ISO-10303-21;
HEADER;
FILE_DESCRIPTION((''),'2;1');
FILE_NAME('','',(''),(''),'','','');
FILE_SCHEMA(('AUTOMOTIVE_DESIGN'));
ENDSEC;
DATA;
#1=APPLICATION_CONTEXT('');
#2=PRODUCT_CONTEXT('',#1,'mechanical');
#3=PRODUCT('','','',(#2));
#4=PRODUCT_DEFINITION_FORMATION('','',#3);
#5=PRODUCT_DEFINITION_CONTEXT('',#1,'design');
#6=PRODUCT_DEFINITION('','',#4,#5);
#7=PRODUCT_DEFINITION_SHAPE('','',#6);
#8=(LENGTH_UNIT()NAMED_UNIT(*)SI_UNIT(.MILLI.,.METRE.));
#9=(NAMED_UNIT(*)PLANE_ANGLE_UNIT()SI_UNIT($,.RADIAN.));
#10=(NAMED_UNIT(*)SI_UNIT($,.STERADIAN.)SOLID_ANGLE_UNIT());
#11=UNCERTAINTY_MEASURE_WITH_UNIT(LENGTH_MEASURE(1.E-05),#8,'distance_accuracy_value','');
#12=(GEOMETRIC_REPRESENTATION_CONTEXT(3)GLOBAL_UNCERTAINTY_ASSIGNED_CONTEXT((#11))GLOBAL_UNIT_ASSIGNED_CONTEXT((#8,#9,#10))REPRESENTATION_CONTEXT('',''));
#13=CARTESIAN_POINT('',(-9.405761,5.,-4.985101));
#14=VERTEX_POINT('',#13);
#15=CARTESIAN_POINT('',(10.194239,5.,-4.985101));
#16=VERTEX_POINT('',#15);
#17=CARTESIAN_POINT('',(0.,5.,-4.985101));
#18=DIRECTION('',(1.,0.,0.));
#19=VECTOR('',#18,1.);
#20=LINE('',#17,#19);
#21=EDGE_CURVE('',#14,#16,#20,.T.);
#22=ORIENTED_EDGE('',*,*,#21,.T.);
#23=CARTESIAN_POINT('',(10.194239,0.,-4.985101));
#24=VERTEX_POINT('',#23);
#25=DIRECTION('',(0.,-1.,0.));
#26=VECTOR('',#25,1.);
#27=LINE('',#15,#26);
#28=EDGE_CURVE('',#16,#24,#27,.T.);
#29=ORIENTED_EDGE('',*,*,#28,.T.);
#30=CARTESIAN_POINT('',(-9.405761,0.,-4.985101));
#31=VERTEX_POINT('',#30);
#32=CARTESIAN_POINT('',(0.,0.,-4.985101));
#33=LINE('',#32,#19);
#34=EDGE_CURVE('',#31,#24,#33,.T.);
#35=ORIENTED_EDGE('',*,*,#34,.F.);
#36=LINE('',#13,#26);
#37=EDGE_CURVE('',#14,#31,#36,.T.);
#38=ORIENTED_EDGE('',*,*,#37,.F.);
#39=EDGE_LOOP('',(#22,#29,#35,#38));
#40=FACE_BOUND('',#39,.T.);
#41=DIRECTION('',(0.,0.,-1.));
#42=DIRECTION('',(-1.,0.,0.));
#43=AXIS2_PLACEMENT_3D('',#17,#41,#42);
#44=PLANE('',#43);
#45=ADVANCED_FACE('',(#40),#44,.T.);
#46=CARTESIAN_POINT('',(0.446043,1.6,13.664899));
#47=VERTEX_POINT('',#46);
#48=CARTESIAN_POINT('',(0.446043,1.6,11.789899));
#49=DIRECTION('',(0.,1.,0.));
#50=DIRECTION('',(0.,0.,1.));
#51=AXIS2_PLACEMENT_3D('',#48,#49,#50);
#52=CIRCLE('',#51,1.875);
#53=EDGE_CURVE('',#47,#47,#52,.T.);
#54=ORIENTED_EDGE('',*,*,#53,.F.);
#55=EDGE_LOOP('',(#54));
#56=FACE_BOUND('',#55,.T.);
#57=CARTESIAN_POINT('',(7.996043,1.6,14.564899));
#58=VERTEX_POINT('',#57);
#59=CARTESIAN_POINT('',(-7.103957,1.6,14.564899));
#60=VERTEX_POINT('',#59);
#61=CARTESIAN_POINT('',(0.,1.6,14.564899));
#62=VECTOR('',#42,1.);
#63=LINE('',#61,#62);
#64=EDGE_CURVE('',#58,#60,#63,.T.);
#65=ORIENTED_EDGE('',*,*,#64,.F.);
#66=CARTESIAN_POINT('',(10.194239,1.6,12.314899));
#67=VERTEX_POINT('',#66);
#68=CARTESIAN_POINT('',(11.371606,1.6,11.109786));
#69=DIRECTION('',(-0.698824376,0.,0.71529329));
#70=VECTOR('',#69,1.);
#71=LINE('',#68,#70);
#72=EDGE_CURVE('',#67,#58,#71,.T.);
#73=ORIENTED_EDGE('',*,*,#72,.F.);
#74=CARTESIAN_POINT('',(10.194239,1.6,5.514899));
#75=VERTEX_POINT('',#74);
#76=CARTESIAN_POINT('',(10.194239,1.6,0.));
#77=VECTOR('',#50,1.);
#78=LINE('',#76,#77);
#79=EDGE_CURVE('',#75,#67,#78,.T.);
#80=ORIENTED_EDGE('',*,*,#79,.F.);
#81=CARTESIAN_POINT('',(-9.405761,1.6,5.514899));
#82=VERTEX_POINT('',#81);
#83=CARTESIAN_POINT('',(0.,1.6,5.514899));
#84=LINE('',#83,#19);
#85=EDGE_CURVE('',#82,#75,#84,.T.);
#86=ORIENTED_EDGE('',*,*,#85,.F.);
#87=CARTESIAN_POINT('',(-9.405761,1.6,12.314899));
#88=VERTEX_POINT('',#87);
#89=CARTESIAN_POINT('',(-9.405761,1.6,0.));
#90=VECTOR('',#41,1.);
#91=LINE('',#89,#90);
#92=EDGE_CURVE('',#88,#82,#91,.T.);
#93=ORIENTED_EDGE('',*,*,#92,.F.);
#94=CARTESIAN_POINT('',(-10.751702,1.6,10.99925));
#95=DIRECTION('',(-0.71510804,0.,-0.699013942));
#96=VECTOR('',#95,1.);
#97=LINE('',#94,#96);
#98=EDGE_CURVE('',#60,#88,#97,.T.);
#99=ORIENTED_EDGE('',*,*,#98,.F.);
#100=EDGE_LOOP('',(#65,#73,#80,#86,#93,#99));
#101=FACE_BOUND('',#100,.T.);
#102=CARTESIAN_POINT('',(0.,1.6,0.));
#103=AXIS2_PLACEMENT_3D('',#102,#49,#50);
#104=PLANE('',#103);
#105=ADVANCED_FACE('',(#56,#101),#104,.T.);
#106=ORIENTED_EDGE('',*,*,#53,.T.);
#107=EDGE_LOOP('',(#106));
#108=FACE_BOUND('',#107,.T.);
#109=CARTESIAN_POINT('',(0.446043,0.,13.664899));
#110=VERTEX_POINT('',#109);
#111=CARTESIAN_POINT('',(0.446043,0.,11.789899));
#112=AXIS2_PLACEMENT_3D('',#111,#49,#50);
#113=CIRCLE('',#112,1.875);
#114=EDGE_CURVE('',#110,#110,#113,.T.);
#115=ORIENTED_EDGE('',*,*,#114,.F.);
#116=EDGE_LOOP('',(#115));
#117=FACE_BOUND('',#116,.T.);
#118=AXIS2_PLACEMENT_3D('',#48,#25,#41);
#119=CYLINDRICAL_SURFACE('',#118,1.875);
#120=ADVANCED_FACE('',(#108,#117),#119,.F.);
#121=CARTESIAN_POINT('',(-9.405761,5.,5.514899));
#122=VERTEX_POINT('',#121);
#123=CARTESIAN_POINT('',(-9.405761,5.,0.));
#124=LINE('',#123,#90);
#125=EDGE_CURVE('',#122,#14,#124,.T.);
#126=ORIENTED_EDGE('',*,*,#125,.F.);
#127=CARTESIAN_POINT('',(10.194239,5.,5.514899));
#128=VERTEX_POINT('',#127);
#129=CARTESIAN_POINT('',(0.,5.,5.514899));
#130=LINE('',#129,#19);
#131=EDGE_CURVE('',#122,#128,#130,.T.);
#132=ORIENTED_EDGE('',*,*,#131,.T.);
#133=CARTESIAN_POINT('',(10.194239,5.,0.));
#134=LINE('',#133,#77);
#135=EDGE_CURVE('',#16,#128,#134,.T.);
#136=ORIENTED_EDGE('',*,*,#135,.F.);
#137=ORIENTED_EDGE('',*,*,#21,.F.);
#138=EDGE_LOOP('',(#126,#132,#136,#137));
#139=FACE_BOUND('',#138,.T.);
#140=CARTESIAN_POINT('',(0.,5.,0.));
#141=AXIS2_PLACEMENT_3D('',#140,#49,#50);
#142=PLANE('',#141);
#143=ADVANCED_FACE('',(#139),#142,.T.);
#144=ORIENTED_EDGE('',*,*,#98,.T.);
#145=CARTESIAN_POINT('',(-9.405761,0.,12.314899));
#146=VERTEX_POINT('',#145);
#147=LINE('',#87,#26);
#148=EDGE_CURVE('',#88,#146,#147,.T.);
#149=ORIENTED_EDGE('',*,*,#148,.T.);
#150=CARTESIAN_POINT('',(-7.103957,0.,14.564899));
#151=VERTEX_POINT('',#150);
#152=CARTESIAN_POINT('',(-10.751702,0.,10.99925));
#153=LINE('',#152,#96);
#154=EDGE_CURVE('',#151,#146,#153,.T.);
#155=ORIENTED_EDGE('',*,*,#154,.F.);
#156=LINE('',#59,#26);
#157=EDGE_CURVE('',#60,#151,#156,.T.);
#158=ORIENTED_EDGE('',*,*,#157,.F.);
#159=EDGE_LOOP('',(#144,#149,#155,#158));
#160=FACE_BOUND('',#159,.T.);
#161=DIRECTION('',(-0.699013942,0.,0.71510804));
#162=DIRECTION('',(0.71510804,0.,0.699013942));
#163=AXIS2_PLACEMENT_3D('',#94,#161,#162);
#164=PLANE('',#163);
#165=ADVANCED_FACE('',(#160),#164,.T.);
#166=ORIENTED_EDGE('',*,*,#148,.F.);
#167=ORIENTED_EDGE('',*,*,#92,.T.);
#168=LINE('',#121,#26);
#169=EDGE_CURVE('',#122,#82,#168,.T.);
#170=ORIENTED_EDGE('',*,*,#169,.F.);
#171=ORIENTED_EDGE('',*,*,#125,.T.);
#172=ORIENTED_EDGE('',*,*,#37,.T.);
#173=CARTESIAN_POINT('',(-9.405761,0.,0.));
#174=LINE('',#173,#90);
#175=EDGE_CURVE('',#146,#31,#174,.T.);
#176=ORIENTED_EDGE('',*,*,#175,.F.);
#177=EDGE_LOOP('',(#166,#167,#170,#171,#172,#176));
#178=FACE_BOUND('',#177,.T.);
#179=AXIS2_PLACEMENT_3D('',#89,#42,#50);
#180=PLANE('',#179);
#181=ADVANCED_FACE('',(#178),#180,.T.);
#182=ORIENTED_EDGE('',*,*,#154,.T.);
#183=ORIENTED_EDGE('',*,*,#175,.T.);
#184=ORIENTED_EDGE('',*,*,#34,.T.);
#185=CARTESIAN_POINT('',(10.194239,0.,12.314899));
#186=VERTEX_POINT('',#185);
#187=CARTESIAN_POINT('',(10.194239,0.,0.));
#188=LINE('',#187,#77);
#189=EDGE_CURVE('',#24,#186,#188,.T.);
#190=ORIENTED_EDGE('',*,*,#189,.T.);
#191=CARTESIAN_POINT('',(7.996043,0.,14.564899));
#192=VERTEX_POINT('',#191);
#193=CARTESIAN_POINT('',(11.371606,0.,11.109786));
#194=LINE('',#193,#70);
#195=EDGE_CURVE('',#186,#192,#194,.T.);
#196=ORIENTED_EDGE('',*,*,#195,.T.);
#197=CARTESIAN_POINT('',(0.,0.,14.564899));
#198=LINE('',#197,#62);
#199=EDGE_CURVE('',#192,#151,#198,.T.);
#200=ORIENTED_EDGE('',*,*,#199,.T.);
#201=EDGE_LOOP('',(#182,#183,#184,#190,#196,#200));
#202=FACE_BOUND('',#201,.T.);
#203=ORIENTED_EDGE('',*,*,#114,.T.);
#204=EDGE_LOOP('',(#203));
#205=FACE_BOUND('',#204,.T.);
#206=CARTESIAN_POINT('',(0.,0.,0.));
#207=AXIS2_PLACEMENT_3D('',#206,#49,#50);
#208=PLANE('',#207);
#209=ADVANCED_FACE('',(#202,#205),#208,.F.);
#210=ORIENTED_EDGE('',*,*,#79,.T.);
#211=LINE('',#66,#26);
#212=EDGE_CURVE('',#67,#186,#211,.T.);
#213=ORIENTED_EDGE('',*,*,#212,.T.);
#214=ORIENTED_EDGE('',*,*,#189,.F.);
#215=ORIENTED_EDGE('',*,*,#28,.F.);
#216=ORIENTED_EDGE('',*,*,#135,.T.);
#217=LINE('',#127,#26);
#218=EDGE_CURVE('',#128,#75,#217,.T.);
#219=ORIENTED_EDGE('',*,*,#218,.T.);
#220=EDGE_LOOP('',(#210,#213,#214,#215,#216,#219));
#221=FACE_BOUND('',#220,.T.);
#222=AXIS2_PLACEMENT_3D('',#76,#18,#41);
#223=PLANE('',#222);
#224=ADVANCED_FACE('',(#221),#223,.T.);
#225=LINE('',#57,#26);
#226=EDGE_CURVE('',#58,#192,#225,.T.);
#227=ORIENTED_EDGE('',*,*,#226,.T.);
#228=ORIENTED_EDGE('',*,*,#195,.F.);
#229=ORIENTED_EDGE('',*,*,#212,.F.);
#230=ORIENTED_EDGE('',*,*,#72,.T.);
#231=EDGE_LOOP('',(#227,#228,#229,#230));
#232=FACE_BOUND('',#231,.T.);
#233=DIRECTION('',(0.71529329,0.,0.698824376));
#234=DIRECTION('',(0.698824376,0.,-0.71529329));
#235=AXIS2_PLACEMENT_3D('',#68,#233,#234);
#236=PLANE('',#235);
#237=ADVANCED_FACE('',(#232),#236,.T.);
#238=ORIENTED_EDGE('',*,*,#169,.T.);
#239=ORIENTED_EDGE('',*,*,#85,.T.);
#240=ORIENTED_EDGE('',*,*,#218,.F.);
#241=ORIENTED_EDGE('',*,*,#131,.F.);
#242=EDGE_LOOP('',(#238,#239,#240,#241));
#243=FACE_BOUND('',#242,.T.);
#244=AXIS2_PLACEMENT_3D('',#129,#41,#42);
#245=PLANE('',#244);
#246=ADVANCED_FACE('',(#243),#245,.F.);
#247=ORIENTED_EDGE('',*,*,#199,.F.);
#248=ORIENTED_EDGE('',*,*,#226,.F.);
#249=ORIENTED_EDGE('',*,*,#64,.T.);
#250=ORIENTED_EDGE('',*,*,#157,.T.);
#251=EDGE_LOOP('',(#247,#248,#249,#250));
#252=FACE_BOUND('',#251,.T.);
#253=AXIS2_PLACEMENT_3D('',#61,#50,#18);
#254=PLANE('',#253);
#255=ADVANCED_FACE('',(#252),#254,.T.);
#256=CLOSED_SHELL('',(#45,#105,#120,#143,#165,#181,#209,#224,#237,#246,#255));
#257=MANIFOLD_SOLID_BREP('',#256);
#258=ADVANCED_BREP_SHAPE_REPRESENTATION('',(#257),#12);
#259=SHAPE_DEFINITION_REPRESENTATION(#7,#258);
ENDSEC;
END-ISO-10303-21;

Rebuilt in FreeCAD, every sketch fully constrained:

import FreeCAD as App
import Part
import Sketcher

V = App.Vector


def add_polygon(sketch, points):
    """Adds a closed chain of lines whose ends are joined by coincident constraints."""
    first, n = sketch.GeometryCount, len(points)
    for a, b in zip(points, points[1:] + points[:1]):
        sketch.addGeometry(Part.LineSegment(App.Vector(*a, 0), App.Vector(*b, 0)), False)
    for i in range(n):
        sketch.addConstraint(Sketcher.Constraint("Coincident", first + i, 2, first + (i + 1) % n, 1))

doc = App.newDocument("Part")
body = doc.addObject("PartDesign::Body", "Body")

# Sketch on XZ plane
sketch1 = body.newObject("Sketcher::SketchObject", "Sketch")
sketch1.AttachmentSupport = (doc.getObject("XZ_Plane"), [""])
sketch1.MapMode = "FlatFace"
add_polygon(sketch1, [(-9.4, 12.3), (-7.1, 14.6), (8, 14.6), (10.2, 12.3), (10.2, 5.5), (-9.4, 5.5)])  # lines 0-5
sketch1.addGeometry(Part.Circle(V(0.4, 11.8, 0), V(0, 0, 1), 1.9), False)  # 6
sketch1.addConstraint([
    Sketcher.Constraint("Horizontal", 1),
    Sketcher.Constraint("Vertical", 3),
    Sketcher.Constraint("Horizontal", 4),
    Sketcher.Constraint("Vertical", 5),
    Sketcher.Constraint("Horizontal", 2, 2, 5, 2),
    Sketcher.Constraint("Diameter", 6, 3.75),
    Sketcher.Constraint("DistanceX", 1, 1, 1, 2, 15.1),
    Sketcher.Constraint("DistanceX", 4, 2, 4, 1, 19.6),
    Sketcher.Constraint("DistanceY", 3, 2, 3, 1, 6.8),
    Sketcher.Constraint("DistanceX", 0, 2, 6, 3, 7.55),
    Sketcher.Constraint("DistanceY", 2, 2, 1, 2, 2.25),
    Sketcher.Constraint("DistanceY", 6, 3, 0, 2, 2.775),
    Sketcher.Constraint("DistanceY", -1, 1, 6, 3, 11.789899),
    Sketcher.Constraint("Distance", 0, 3.21882),
    Sketcher.Constraint("DistanceX", -1, 1, 2, 2, 10.194239),
])
pad1 = body.newObject("PartDesign::Pad", "Pad")
pad1.Profile = sketch1
pad1.Length = 1.6
pad1.Reversed = True

# Sketch on XZ plane
sketch2 = body.newObject("Sketcher::SketchObject", "Sketch001")
sketch2.AttachmentSupport = (doc.getObject("XZ_Plane"), [""])
sketch2.MapMode = "FlatFace"
add_polygon(sketch2, [(-9, -5), (-9, 6), (10, 6), (10, -5)])  # lines 0-3
sketch2.addConstraint([
    Sketcher.Constraint("Vertical", 0),
    Sketcher.Constraint("Horizontal", 1),
    Sketcher.Constraint("Vertical", 2),
    Sketcher.Constraint("Horizontal", 3),
    Sketcher.Constraint("DistanceX", 1, 1, 1, 2, 19.6),
    Sketcher.Constraint("DistanceY", 0, 1, 0, 2, 10.5),
    Sketcher.Constraint("DistanceY", -1, 1, 0, 2, 5.514899),
    Sketcher.Constraint("DistanceX", 0, 2, -1, 1, 9.405761),
])
pad2 = body.newObject("PartDesign::Pad", "Pad001")
pad2.Profile = sketch2
pad2.Length = 5
pad2.Reversed = True

doc.recompute()
